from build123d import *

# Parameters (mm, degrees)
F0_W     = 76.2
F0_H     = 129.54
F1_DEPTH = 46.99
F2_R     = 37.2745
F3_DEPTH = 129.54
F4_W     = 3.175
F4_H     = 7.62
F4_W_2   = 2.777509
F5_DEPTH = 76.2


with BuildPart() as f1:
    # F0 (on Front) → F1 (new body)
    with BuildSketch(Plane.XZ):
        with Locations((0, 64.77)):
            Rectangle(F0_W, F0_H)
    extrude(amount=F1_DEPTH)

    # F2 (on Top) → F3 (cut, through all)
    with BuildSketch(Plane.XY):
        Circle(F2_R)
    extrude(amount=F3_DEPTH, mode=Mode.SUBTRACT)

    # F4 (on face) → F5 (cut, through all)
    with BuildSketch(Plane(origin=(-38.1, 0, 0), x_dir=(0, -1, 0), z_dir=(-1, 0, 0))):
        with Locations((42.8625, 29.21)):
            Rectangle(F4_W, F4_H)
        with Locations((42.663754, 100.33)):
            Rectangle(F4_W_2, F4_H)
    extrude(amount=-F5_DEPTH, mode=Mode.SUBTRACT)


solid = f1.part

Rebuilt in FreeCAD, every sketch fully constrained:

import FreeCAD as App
import Part
import Sketcher

V = App.Vector
Q = App.Units.Quantity

doc = App.newDocument("Part")
body = doc.addObject("PartDesign::Body", "Body")

sketch1 = body.newObject("Sketcher::SketchObject", "Sketch")
sketch1.AttachmentSupport = (doc.getObject("XZ_Plane"), [""])
sketch1.MapMode = "FlatFace"
sketch1.addGeometry([
    Part.LineSegment(V(-38, 130, 0), V(-38, 0, 0)),
    Part.LineSegment(V(-38, 0, 0), V(38, 0, 0)),
    Part.LineSegment(V(38, 0, 0), V(38, 130, 0)),
    Part.LineSegment(V(38, 130, 0), V(-38, 130, 0)),
], False)
sketch1.addConstraint([
    Sketcher.Constraint("Coincident", 0, 2, 1, 1),
    Sketcher.Constraint("Coincident", 1, 2, 2, 1),
    Sketcher.Constraint("Coincident", 2, 2, 3, 1),
    Sketcher.Constraint("Coincident", 3, 2, 0, 1),
    Sketcher.Constraint("Vertical", 0),
    Sketcher.Constraint("Horizontal", 1),
    Sketcher.Constraint("Vertical", 2),
    Sketcher.Constraint("Horizontal", 3),
    Sketcher.Constraint("Symmetric", 0, 2, 1, 2, -1, 1),
    Sketcher.Constraint("DistanceX", 1, 1, 1, 2, Q("3 in")),
    Sketcher.Constraint("DistanceY", 0, 2, 0, 1, Q("5.1 in")),
])
pad1 = body.newObject("PartDesign::Pad", "Pad")
pad1.Profile = sketch1
pad1.Length = Q("1.85 in")

sketch2 = body.newObject("Sketcher::SketchObject", "Sketch001")
sketch2.AttachmentSupport = (doc.getObject("XY_Plane"), [""])
sketch2.MapMode = "FlatFace"
sketch2.addGeometry(Part.Circle(V(0, 0, 0), V(0, 0, 1), 37), False)
sketch2.addConstraint([
    Sketcher.Constraint("Coincident", 0, 3, -1, 1),
    Sketcher.Constraint("Diameter", 0, Q("2.935 in")),
])
pocket1 = body.newObject("PartDesign::Pocket", "Pocket")
pocket1.Profile = sketch2
pocket1.Type = "ThroughAll"
pocket1.Reversed = True

sketch3 = body.newObject("Sketcher::SketchObject", "Sketch002")
sketch3.AttachmentSupport = (doc.getObject("YZ_Plane"), [""])
sketch3.MapMode = "FlatFace"
sketch3.AttachmentOffset = App.Placement(V(0, 0, -1.5 * 25.4), App.Rotation())
sketch3.addGeometry([
    Part.LineSegment(V(-41.3, 33, 0), V(-41.3, 25.4, 0)),
    Part.LineSegment(V(-41.3, 25.4, 0), V(-44.5, 25.4, 0)),
    Part.LineSegment(V(-44.5, 25.4, 0), V(-44.5, 33, 0)),
    Part.LineSegment(V(-44.5, 33, 0), V(-41.3, 33, 0)),
    Part.LineSegment(V(-41.3, 104.1, 0), V(-41.3, 96.5, 0)),
    Part.LineSegment(V(-41.3, 96.5, 0), V(-44.1, 96.5, 0)),
    Part.LineSegment(V(-44.1, 96.5, 0), V(-44.1, 104.1, 0)),
    Part.LineSegment(V(-44.1, 104.1, 0), V(-41.3, 104.1, 0)),
], False)
sketch3.addConstraint([
    Sketcher.Constraint("Coincident", 0, 2, 1, 1),
    Sketcher.Constraint("Coincident", 1, 2, 2, 1),
    Sketcher.Constraint("Coincident", 2, 2, 3, 1),
    Sketcher.Constraint("Coincident", 3, 2, 0, 1),
    Sketcher.Constraint("Coincident", 4, 2, 5, 1),
    Sketcher.Constraint("Coincident", 5, 2, 6, 1),
    Sketcher.Constraint("Coincident", 6, 2, 7, 1),
    Sketcher.Constraint("Coincident", 7, 2, 4, 1),
    Sketcher.Constraint("Vertical", 0),
    Sketcher.Constraint("Horizontal", 1),
    Sketcher.Constraint("Vertical", 2),
    Sketcher.Constraint("Horizontal", 3),
    Sketcher.Constraint("Vertical", 4),
    Sketcher.Constraint("Horizontal", 5),
    Sketcher.Constraint("Vertical", 6),
    Sketcher.Constraint("Horizontal", 7),
    Sketcher.Constraint("Vertical", 3, 2, 4, 2),
    Sketcher.Constraint("Equal", 2, 4),
    Sketcher.Constraint("DistanceY", 0, 2, 0, 1, Q("0.3 in")),
    Sketcher.Constraint("DistanceY", -1, 1, 0, 2, Q("1 in")),
    Sketcher.Constraint("DistanceY", -1, 1, 4, 2, Q("3.8 in")),
    Sketcher.Constraint("DistanceX", 1, 2, 1, 1, Q("0.125 in")),
    Sketcher.Constraint("DistanceX", 1, 2, -1, 1, Q("1.75 in")),
    Sketcher.Constraint("DistanceX", 5, 2, 5, 1, Q("2.777509 mm")),
])
pocket2 = body.newObject("PartDesign::Pocket", "Pocket001")
pocket2.Profile = sketch3
pocket2.Type = "ThroughAll"
pocket2.Reversed = True

doc.recompute()
